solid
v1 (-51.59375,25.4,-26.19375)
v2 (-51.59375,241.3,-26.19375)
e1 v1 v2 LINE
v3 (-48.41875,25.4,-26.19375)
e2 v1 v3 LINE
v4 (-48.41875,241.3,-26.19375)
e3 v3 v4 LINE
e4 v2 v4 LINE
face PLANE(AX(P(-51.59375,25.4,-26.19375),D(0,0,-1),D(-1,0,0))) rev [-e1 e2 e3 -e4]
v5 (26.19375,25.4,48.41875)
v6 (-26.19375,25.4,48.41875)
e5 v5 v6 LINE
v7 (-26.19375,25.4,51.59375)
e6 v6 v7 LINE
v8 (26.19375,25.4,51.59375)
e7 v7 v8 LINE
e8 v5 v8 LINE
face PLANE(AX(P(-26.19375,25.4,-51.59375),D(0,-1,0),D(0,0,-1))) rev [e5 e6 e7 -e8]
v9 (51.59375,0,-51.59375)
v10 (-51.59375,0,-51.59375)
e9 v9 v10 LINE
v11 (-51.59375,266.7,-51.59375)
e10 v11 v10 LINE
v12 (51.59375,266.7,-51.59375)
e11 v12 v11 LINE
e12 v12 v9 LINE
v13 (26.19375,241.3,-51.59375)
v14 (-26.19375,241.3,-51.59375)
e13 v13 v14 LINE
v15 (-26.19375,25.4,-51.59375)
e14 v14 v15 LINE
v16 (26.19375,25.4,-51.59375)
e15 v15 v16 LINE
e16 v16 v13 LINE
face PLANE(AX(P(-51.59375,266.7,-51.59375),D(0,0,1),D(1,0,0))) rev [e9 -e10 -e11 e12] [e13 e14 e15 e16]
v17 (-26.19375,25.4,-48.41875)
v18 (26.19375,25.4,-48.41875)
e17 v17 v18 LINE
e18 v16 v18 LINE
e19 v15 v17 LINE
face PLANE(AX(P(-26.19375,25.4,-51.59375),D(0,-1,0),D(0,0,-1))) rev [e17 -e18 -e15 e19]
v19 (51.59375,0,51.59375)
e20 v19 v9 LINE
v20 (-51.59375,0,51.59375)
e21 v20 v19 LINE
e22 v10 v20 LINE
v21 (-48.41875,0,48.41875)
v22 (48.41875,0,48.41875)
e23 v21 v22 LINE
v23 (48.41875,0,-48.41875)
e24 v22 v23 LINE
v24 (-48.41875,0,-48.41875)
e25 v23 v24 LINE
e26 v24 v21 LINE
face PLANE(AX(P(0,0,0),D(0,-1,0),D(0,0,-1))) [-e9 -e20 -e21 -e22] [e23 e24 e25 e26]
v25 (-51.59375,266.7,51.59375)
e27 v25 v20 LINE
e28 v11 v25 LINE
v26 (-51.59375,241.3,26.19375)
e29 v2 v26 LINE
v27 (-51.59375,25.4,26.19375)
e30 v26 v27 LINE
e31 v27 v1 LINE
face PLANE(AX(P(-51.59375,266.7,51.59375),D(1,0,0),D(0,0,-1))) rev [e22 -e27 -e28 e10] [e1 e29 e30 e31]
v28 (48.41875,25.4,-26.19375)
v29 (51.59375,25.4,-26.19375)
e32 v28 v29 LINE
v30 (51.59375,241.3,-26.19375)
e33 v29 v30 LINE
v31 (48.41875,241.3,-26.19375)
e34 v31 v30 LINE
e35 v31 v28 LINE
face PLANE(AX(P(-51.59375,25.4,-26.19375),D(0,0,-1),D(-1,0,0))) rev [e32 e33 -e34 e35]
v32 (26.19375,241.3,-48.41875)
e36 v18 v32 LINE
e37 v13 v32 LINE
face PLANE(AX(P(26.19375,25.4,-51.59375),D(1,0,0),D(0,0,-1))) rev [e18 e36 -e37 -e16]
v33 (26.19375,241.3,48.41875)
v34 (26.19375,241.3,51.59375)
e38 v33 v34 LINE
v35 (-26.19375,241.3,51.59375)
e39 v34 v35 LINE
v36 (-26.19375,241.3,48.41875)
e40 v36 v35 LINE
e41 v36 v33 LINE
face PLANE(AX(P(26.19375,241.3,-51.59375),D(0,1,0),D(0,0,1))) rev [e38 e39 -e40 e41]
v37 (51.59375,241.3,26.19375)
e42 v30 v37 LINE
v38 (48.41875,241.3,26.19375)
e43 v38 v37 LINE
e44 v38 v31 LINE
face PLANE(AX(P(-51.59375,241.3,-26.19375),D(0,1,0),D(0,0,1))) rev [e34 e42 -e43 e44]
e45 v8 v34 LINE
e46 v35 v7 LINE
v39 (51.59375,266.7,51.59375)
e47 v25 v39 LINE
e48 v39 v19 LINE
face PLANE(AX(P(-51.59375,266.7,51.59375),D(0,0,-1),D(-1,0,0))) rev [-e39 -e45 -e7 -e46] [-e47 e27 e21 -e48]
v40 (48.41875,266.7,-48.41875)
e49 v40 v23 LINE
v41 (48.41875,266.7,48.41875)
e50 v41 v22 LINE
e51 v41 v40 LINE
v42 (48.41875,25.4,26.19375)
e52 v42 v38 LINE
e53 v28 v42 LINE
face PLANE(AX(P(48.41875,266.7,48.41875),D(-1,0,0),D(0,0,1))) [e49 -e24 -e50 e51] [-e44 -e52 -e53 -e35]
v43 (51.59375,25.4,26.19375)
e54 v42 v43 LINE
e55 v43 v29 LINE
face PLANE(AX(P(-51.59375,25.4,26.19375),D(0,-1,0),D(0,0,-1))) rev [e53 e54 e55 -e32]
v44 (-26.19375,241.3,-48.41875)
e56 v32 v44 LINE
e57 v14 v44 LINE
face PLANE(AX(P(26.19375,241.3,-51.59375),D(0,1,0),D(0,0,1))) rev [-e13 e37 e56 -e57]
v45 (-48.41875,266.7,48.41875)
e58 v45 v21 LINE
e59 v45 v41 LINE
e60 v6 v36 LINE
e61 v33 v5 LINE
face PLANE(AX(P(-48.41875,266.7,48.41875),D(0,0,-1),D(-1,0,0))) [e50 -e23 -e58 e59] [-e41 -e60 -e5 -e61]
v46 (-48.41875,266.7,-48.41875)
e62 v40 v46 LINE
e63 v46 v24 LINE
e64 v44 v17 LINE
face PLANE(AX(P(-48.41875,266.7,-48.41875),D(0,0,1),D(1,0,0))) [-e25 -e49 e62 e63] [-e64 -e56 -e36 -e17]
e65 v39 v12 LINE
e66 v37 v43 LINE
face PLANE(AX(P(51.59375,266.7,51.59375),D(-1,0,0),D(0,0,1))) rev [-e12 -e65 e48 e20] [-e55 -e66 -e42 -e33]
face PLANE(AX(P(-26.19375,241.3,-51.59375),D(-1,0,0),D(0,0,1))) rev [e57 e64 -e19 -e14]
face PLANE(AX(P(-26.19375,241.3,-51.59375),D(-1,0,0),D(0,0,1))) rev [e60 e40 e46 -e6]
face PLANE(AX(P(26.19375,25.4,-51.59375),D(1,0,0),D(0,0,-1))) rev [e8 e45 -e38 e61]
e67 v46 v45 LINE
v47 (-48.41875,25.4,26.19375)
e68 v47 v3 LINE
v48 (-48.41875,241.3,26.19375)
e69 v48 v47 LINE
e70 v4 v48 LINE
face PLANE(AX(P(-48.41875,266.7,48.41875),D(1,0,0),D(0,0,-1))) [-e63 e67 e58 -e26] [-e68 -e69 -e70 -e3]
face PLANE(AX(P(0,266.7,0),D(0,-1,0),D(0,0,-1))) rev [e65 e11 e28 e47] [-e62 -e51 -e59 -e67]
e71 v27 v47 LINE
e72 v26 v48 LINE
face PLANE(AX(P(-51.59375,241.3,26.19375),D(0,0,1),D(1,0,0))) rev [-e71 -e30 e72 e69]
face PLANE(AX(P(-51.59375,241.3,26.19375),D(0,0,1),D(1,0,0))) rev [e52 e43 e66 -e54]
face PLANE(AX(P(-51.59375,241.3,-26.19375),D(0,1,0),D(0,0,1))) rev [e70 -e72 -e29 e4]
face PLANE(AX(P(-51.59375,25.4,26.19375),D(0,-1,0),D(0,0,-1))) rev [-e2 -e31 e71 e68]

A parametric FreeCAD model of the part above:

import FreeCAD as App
import Part
import Sketcher
Q = App.Units.Quantity


def add_polygon(sketch, points):
    """Adds a closed chain of lines whose ends are joined by coincident constraints."""
    first, n = sketch.GeometryCount, len(points)
    for a, b in zip(points, points[1:] + points[:1]):
        sketch.addGeometry(Part.LineSegment(App.Vector(*a, 0), App.Vector(*b, 0)), False)
    for i in range(n):
        sketch.addConstraint(Sketcher.Constraint("Coincident", first + i, 2, first + (i + 1) % n, 1))

doc = App.newDocument("Part")
body = doc.addObject("PartDesign::Body", "Body")

# Sketch on XZ plane
sketch1 = body.newObject("Sketcher::SketchObject", "Sketch")
sketch1.AttachmentSupport = (doc.getObject("XZ_Plane"), [""])
sketch1.MapMode = "FlatFace"
add_polygon(sketch1, [(-52, -52), (-52, 52), (52, 52), (52, -52)])  # lines 0-3
add_polygon(sketch1, [(48, 48), (-48, 48), (-48, -48), (48, -48)])  # lines 4-7
sketch1.addConstraint([
    Sketcher.Constraint("Vertical", 0),
    Sketcher.Constraint("Horizontal", 1),
    Sketcher.Constraint("Vertical", 2),
    Sketcher.Constraint("Horizontal", 3),
    Sketcher.Constraint("Horizontal", 4),
    Sketcher.Constraint("Vertical", 5),
    Sketcher.Constraint("Horizontal", 6),
    Sketcher.Constraint("Vertical", 7),
    Sketcher.Constraint("Symmetric", 0, 2, 2, 2, -1, 1),
    Sketcher.Constraint("Symmetric", 4, 2, 6, 2, -1, 1),
    Sketcher.Constraint("Equal", 3, 0),
    Sketcher.Constraint("Equal", 6, 5),
    Sketcher.Constraint("DistanceX", 1, 1, 1, 2, Q("4.0625 in")),
    Sketcher.Constraint("DistanceX", 4, 2, 4, 1, Q("3.8125 in")),
])
pad1 = body.newObject("PartDesign::Pad", "Pad")
pad1.Profile = sketch1
pad1.Length = Q("10.5 in")
pad1.Reversed = True

# Sketch on XY plane
sketch2 = body.newObject("Sketcher::SketchObject", "Sketch001")
sketch2.AttachmentSupport = (doc.getObject("XY_Plane"), [""])
sketch2.MapMode = "FlatFace"
add_polygon(sketch2, [(-26, 241), (-26, 25), (26, 25), (26, 241)])  # lines 0-3
sketch2.addConstraint([
    Sketcher.Constraint("Vertical", 0),
    Sketcher.Constraint("Horizontal", 1),
    Sketcher.Constraint("Vertical", 2),
    Sketcher.Constraint("Horizontal", 3),
    Sketcher.Constraint("DistanceY", 0, 2, 0, 1, Q("8.5 in")),
    Sketcher.Constraint("DistanceY", -1, 1, 0, 2, Q("1 in")),
    Sketcher.Constraint("DistanceX", 1, 1, 1, 2, Q("2.0625 in")),
    Sketcher.Constraint("DistanceX", 0, 2, -1, 1, Q("1.03125 in")),
])
pocket1 = body.newObject("PartDesign::Pocket", "Pocket")
pocket1.Profile = sketch2
pocket1.Type = "ThroughAll"
pocket1.Midplane = True

# Sketch on YZ plane
sketch3 = body.newObject("Sketcher::SketchObject", "Sketch002")
sketch3.AttachmentSupport = (doc.getObject("YZ_Plane"), [""])
sketch3.MapMode = "FlatFace"
add_polygon(sketch3, [(241, 26), (25, 26), (25, -26), (241, -26)])  # lines 0-3
sketch3.addConstraint([
    Sketcher.Constraint("Horizontal", 0),
    Sketcher.Constraint("Vertical", 1),
    Sketcher.Constraint("Horizontal", 2),
    Sketcher.Constraint("Vertical", 3),
    Sketcher.Constraint("DistanceX", 0, 2, 0, 1, Q("8.5 in")),
    Sketcher.Constraint("DistanceX", -1, 1, 0, 2, Q("1 in")),
    Sketcher.Constraint("DistanceY", 1, 2, 1, 1, Q("2.0625 in")),
    Sketcher.Constraint("DistanceY", -1, 1, 0, 2, Q("1.03125 in")),
])
pocket2 = body.newObject("PartDesign::Pocket", "Pocket001")
pocket2.Profile = sketch3
pocket2.Type = "ThroughAll"
pocket2.Midplane = True

doc.recompute()
